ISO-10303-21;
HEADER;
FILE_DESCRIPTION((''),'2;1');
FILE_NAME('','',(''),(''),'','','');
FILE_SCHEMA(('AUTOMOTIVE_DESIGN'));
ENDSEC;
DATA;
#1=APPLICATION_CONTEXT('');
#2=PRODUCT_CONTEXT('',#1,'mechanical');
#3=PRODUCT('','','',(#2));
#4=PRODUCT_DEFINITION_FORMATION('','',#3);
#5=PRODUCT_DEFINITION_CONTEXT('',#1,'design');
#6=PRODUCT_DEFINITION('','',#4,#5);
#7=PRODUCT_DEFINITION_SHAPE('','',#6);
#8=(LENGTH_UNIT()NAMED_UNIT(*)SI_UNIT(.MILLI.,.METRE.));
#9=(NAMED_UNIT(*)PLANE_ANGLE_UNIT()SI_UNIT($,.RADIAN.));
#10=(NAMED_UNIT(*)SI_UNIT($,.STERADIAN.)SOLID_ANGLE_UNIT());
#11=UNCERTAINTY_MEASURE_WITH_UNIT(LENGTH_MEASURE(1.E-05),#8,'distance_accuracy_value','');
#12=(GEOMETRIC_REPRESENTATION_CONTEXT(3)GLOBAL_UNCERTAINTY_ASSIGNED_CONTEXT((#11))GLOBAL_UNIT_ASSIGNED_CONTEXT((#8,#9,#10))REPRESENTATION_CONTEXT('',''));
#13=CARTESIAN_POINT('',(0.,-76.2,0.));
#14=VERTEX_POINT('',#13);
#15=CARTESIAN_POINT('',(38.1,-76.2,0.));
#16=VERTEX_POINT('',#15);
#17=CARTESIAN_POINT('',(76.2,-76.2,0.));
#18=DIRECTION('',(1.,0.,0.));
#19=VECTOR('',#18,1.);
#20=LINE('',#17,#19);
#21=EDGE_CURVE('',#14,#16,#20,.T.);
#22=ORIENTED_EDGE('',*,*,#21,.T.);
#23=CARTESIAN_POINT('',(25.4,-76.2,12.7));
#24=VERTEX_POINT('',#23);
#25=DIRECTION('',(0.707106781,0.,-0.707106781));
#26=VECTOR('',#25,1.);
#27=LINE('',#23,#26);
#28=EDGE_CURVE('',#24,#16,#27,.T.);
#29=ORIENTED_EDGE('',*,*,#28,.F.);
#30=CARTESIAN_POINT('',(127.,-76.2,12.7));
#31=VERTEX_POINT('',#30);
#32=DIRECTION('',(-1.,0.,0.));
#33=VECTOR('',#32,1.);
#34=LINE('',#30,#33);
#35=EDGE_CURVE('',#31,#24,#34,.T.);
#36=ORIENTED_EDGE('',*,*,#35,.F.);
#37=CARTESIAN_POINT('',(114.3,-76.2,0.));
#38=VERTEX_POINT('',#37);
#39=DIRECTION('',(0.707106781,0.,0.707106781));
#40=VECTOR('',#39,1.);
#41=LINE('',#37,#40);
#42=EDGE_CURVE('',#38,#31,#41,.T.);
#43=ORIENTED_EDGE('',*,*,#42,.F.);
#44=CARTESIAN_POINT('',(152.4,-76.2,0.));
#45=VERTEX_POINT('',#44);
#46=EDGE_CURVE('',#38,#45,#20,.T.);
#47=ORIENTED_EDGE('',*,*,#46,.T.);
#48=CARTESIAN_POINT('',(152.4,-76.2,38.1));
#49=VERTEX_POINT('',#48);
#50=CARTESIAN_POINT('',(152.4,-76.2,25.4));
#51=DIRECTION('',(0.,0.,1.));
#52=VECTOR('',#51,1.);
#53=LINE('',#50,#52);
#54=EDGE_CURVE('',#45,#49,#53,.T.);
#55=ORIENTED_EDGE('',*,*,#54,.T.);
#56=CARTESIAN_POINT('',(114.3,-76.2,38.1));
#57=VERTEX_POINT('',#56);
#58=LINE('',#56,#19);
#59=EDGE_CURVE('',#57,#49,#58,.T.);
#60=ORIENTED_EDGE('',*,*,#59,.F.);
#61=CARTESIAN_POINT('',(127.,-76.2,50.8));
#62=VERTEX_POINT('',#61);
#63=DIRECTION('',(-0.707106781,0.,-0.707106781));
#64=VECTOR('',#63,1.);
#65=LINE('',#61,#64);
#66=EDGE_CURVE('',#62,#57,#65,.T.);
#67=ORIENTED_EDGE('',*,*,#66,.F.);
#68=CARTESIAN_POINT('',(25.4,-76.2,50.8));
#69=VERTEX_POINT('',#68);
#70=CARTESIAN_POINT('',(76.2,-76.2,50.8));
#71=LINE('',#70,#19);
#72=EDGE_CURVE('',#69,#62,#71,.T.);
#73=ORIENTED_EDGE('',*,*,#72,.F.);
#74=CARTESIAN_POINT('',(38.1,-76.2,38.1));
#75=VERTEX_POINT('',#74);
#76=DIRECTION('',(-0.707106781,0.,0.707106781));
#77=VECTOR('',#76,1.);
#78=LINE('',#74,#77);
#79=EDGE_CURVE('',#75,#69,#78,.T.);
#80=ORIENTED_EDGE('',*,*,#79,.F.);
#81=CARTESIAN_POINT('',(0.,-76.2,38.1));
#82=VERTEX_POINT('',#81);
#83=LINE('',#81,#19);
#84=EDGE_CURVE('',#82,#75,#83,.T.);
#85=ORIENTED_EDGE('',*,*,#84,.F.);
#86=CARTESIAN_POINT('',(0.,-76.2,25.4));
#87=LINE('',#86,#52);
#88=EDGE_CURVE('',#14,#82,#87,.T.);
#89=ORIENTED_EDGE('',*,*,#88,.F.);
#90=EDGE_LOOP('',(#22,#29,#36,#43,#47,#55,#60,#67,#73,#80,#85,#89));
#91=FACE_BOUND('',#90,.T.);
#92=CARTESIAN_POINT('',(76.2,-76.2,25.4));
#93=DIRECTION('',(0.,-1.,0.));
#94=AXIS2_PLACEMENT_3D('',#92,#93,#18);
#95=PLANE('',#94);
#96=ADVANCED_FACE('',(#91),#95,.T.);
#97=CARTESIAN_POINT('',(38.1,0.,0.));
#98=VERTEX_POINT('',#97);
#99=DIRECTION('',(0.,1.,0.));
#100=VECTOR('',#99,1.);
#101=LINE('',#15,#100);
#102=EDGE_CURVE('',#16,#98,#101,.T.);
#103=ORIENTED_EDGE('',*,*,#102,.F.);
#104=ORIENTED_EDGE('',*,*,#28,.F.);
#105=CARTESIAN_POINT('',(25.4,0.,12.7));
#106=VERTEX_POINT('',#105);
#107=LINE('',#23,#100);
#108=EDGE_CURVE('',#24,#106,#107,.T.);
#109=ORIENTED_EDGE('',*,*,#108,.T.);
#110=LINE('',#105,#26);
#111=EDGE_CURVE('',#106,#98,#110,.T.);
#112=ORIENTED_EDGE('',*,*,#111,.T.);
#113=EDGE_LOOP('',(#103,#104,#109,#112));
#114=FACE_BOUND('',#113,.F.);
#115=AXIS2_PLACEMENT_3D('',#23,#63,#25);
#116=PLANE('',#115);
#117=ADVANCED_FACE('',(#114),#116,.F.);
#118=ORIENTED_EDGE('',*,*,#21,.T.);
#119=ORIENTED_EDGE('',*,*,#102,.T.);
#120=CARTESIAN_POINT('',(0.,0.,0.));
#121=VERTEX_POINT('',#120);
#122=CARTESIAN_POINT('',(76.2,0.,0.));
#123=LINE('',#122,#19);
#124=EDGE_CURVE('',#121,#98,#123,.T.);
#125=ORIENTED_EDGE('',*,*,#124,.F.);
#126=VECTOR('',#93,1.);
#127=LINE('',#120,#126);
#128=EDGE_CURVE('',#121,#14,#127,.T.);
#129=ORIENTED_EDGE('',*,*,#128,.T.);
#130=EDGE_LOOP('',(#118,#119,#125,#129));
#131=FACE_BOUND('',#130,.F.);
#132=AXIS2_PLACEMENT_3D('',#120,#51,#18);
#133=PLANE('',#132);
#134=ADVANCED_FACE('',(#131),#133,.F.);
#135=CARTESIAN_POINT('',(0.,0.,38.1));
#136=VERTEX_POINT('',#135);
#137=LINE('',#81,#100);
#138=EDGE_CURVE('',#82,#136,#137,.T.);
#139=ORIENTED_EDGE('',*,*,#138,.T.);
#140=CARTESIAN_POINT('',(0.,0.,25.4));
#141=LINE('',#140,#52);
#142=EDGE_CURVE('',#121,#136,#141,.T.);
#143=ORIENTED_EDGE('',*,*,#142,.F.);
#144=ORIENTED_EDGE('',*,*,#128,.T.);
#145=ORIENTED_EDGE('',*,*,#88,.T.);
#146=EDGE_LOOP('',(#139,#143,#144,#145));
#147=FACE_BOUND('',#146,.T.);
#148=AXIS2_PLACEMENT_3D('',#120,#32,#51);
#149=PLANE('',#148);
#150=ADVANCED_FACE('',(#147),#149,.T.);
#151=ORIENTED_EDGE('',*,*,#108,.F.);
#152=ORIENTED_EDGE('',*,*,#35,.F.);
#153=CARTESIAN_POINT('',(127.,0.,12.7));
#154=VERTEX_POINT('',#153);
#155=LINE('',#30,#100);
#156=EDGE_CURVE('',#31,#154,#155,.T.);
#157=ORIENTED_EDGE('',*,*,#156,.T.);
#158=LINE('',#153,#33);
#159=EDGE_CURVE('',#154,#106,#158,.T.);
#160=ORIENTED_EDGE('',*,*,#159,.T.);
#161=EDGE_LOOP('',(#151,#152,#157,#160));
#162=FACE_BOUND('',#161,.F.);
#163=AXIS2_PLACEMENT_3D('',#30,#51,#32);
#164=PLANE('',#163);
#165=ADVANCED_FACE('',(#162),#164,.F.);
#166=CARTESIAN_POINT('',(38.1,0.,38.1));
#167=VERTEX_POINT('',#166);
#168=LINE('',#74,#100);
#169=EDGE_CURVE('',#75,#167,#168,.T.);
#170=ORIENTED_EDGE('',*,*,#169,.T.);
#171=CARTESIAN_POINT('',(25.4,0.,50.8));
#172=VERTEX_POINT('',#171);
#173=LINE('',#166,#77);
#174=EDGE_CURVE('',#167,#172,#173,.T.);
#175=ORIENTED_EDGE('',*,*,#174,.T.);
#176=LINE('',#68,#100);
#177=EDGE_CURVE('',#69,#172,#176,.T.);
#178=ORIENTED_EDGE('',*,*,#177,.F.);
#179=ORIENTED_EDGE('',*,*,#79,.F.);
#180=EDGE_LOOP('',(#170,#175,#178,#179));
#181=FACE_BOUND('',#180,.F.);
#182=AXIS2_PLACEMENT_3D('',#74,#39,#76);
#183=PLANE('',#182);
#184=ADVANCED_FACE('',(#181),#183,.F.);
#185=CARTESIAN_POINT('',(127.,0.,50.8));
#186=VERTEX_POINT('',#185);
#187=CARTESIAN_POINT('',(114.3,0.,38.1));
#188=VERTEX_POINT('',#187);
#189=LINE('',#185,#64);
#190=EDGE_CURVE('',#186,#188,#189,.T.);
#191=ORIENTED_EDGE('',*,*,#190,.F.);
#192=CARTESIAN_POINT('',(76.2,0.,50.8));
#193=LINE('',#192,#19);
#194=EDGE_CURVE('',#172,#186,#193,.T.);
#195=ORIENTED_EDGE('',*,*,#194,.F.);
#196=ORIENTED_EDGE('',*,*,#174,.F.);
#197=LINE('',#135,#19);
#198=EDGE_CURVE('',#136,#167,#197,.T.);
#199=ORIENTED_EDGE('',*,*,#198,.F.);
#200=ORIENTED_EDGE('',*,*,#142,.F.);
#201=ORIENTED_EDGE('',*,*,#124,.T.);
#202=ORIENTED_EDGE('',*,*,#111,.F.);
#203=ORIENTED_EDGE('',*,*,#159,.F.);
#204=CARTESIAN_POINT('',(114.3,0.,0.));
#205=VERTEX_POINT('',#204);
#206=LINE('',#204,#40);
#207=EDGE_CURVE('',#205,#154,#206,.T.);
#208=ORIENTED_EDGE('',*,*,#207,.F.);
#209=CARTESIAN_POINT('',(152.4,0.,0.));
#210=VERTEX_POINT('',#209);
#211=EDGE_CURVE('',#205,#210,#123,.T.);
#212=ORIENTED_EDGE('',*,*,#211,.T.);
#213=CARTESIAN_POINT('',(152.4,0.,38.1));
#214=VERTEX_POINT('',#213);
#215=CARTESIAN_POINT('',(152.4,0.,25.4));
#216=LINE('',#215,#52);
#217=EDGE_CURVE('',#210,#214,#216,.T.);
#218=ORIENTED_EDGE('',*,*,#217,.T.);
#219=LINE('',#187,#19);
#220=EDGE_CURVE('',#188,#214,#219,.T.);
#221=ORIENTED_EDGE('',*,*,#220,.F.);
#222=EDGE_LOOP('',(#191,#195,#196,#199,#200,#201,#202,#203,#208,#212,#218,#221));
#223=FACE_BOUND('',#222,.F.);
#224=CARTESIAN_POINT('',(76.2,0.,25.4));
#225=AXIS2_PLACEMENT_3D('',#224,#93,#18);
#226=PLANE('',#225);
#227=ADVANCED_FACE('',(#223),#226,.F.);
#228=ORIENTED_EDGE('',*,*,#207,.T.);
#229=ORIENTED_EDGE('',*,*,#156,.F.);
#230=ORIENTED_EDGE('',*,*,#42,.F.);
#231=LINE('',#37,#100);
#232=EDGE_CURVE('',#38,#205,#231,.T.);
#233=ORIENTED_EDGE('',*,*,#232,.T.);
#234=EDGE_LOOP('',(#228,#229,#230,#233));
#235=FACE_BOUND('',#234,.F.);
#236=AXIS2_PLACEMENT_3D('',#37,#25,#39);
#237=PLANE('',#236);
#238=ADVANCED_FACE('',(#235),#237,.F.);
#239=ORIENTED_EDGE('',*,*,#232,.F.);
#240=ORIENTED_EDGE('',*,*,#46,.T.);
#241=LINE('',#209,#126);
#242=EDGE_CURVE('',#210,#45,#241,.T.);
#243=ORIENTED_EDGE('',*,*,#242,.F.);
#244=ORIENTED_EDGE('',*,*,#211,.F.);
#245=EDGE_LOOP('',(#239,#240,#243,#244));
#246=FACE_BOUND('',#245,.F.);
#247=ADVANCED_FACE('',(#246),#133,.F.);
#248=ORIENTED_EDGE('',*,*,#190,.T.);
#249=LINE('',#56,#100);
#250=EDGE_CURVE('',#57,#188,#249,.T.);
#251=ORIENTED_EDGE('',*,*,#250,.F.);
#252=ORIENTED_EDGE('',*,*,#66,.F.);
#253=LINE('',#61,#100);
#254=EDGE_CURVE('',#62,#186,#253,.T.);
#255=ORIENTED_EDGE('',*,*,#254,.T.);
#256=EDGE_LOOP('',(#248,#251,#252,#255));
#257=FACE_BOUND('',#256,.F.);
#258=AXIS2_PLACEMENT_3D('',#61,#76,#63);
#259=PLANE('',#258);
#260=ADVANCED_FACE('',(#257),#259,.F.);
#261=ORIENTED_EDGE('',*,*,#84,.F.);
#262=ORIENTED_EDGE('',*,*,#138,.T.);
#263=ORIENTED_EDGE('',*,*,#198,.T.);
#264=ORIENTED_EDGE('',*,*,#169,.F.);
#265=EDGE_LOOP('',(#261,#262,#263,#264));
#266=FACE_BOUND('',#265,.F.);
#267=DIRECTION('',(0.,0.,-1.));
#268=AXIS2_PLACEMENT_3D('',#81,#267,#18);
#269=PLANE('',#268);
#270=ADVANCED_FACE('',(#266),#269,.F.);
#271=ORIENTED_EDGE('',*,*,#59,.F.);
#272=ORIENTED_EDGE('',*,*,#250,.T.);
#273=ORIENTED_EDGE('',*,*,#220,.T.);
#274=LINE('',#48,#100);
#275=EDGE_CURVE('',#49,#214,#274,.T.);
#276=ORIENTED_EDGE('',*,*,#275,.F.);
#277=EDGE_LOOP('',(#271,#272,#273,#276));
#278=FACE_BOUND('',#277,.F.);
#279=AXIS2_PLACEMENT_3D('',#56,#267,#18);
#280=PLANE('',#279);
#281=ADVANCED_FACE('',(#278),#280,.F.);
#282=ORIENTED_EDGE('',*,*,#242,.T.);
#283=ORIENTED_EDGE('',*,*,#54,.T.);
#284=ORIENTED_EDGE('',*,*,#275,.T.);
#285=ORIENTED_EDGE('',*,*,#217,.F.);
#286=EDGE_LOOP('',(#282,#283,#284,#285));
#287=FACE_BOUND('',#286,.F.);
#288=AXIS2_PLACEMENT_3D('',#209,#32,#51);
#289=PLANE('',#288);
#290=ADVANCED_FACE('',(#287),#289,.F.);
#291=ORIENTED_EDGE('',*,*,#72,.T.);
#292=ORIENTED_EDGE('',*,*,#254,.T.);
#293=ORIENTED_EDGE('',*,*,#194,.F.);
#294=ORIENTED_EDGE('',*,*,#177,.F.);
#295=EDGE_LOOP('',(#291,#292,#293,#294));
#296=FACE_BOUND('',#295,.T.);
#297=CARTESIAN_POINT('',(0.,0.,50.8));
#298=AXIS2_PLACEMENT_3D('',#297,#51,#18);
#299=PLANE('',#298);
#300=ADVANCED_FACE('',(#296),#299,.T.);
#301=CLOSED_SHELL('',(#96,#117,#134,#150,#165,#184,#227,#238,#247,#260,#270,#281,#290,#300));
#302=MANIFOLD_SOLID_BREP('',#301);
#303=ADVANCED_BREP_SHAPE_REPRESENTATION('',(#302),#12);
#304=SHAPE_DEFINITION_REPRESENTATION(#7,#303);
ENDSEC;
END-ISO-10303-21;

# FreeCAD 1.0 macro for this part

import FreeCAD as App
import Part
import Sketcher
Q = App.Units.Quantity


def add_polygon(sketch, points):
    """Adds a closed chain of lines whose ends are joined by coincident constraints."""
    first, n = sketch.GeometryCount, len(points)
    for a, b in zip(points, points[1:] + points[:1]):
        sketch.addGeometry(Part.LineSegment(App.Vector(*a, 0), App.Vector(*b, 0)), False)
    for i in range(n):
        sketch.addConstraint(Sketcher.Constraint("Coincident", first + i, 2, first + (i + 1) % n, 1))

doc = App.newDocument("Part")
body = doc.addObject("PartDesign::Body", "Body")

sketch1 = body.newObject("Sketcher::SketchObject", "Sketch")
sketch1.AttachmentSupport = (doc.getObject("XZ_Plane"), [""])
sketch1.MapMode = "FlatFace"
add_polygon(sketch1, [(0, 51), (0, 0), (152, 0), (152, 51)])
sketch1.addConstraint([
    Sketcher.Constraint("Vertical", 0),
    Sketcher.Constraint("Horizontal", 1),
    Sketcher.Constraint("Vertical", 2),
    Sketcher.Constraint("Horizontal", 3),
    Sketcher.Constraint("Coincident", 0, 2, -1, 1),
    Sketcher.Constraint("DistanceX", 1, 1, 1, 2, Q("6 in")),
    Sketcher.Constraint("DistanceY", 0, 2, 0, 1, Q("2 in")),
])
pad1 = body.newObject("PartDesign::Pad", "Pad")
pad1.Profile = sketch1
pad1.Length = Q("3 in")

sketch2 = body.newObject("Sketcher::SketchObject", "Sketch001")
sketch2.AttachmentSupport = (doc.getObject("XZ_Plane"), [""])
sketch2.MapMode = "FlatFace"
sketch2.AttachmentOffset = App.Placement(App.Vector(0, 0, 3 * 25.4), App.Rotation())
add_polygon(sketch2, [(25, 51), (0, 51), (0, 38), (38, 38)])
sketch2.addConstraint([
    Sketcher.Constraint("Horizontal", 0),
    Sketcher.Constraint("Vertical", 1),
    Sketcher.Constraint("Horizontal", 2),
    Sketcher.Constraint("PointOnObject", 0, 2, -2),
    Sketcher.Constraint("DistanceX", 0, 2, 0, 1, Q("1 in")),
    Sketcher.Constraint("DistanceX", 2, 1, 2, 2, Q("1.5 in")),
    Sketcher.Constraint("DistanceY", 1, 2, 1, 1, Q("0.5 in")),
    Sketcher.Constraint("DistanceY", -1, 1, 0, 2, Q("2 in")),
])
pocket1 = body.newObject("PartDesign::Pocket", "Pocket")
pocket1.Profile = sketch2
pocket1.Length = Q("3 in")

sketch3 = body.newObject("Sketcher::SketchObject", "Sketch002")
sketch3.AttachmentSupport = (doc.getObject("XZ_Plane"), [""])
sketch3.MapMode = "FlatFace"
sketch3.AttachmentOffset = App.Placement(App.Vector(0, 0, 3 * 25.4), App.Rotation())
add_polygon(sketch3, [(152, 38), (152, 51), (127, 51), (114, 38)])
sketch3.addConstraint([
    Sketcher.Constraint("Vertical", 0),
    Sketcher.Constraint("Horizontal", 1),
    Sketcher.Constraint("Horizontal", 3),
    Sketcher.Constraint("DistanceX", 1, 2, 1, 1, Q("1 in")),
    Sketcher.Constraint("DistanceX", 3, 1, 3, 2, Q("1.5 in")),
    Sketcher.Constraint("DistanceY", 0, 1, 0, 2, Q("0.5 in")),
    Sketcher.Constraint("DistanceX", -1, 1, 0, 2, Q("6 in")),
    Sketcher.Constraint("DistanceY", -1, 1, 0, 2, Q("2 in")),
])
pocket2 = body.newObject("PartDesign::Pocket", "Pocket001")
pocket2.Profile = sketch3
pocket2.Length = Q("3 in")

sketch4 = body.newObject("Sketcher::SketchObject", "Sketch003")
sketch4.AttachmentSupport = (doc.getObject("XZ_Plane"), [""])
sketch4.MapMode = "FlatFace"
sketch4.AttachmentOffset = App.Placement(App.Vector(0, 0, 3 * 25.4), App.Rotation())
add_polygon(sketch4, [(25, 13), (38, 0), (114, 0), (127, 13)])
sketch4.addConstraint([
    Sketcher.Constraint("Horizontal", 1),
    Sketcher.Constraint("Horizontal", 3),
    Sketcher.Constraint("PointOnObject", 0, 2, -1),
    Sketcher.Constraint("Perpendicular", 0, 2),
    Sketcher.Constraint("Equal", 0, 2),
    Sketcher.Constraint("DistanceX", 1, 1, 1, 2, Q("3 in")),
    Sketcher.Constraint("DistanceX", 3, 2, 3, 1, Q("4 in")),
    Sketcher.Constraint("DistanceX", -1, 1, 2, 2, Q("5 in")),
])
pocket3 = body.newObject("PartDesign::Pocket", "Pocket002")
pocket3.Profile = sketch4
pocket3.Length = Q("3 in")

doc.recompute()
